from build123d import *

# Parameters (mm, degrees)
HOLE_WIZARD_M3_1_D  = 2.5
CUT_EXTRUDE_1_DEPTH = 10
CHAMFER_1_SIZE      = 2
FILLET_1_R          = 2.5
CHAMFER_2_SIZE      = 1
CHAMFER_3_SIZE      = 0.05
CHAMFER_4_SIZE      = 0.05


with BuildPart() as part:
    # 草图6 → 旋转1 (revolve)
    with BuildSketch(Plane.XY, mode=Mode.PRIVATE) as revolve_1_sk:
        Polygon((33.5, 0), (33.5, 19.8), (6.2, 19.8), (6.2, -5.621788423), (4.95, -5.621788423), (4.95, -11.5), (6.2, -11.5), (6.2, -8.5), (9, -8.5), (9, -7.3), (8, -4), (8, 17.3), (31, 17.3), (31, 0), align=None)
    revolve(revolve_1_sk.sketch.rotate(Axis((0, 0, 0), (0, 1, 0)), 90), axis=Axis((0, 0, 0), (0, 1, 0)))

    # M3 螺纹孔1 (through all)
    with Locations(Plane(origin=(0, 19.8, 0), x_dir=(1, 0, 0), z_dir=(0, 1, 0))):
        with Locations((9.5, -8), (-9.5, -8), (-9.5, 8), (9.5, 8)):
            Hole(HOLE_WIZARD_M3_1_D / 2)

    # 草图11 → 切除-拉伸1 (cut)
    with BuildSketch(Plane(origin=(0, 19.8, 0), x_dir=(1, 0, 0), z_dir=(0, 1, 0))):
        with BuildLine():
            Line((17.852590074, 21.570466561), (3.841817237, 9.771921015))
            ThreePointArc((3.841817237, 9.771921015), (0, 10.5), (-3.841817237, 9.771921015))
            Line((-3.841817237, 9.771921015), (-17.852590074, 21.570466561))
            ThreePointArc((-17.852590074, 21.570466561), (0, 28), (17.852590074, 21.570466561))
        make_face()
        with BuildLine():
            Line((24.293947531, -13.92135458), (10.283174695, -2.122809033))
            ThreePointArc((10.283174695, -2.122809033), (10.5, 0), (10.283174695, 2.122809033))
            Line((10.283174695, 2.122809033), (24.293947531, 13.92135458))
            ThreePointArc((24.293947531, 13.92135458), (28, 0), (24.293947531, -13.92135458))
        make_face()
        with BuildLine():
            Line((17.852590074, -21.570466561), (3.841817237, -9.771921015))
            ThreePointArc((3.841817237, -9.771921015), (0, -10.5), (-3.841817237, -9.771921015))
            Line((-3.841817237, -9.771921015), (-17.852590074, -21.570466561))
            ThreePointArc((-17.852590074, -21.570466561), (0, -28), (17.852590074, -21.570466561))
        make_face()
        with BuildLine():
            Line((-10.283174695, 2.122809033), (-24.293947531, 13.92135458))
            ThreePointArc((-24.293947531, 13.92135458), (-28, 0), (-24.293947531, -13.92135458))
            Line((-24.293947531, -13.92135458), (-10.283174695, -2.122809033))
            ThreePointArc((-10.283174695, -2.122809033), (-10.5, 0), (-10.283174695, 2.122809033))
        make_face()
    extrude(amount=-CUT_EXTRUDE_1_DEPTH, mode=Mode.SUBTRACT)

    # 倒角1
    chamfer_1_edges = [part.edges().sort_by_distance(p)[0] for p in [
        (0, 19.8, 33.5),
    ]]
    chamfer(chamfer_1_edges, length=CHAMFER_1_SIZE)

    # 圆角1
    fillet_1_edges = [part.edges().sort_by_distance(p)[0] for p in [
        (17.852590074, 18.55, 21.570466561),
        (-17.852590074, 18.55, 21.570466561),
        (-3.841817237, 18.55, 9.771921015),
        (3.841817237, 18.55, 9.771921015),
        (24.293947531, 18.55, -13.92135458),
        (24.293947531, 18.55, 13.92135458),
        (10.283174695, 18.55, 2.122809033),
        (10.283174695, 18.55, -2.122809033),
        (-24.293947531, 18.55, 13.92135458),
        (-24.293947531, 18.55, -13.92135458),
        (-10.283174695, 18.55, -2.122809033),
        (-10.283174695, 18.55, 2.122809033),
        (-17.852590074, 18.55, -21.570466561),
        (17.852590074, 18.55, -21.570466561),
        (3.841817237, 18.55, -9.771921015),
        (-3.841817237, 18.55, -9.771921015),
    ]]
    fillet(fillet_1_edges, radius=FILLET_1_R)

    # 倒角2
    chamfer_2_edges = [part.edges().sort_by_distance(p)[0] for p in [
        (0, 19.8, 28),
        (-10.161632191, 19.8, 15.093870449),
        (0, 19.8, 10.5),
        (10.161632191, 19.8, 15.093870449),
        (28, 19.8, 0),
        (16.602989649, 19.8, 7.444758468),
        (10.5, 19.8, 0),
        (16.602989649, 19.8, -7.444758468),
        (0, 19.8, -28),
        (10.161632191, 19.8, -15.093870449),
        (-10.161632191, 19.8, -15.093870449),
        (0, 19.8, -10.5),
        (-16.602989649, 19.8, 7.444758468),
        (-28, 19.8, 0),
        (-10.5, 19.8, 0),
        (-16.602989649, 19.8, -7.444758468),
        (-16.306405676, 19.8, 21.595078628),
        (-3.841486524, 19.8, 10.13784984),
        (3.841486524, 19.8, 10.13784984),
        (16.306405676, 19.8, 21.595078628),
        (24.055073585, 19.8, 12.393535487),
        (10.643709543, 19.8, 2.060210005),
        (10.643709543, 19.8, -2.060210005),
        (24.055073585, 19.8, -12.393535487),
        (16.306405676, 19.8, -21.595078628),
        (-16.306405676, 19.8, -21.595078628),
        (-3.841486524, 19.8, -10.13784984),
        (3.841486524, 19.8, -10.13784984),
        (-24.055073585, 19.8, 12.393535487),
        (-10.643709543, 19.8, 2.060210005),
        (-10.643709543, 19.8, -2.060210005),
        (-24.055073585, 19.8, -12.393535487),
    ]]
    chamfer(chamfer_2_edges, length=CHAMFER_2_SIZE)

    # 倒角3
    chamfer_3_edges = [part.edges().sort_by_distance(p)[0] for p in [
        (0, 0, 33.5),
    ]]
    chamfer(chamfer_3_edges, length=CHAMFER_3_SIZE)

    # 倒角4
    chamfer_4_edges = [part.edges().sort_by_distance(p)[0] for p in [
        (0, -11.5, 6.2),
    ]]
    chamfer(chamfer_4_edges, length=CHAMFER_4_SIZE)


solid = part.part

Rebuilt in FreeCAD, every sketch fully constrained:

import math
import FreeCAD as App
import Part
import Sketcher
from FreeCAD import Vector


def edges_at(feature, points):
    """Names of the edges that pass closest to the given points."""
    edges = feature.Shape.Edges
    near = lambda p: min(range(len(edges)), key=lambda i: edges[i].distToShape(Part.Vertex(*p))[0])
    return sorted({f"Edge{near(p) + 1}" for p in points})


def add_polygon(sketch, points):
    """Adds a closed chain of lines whose ends are joined by coincident constraints."""
    first, n = sketch.GeometryCount, len(points)
    for a, b in zip(points, points[1:] + points[:1]):
        sketch.addGeometry(Part.LineSegment(App.Vector(*a, 0), App.Vector(*b, 0)), False)
    for i in range(n):
        sketch.addConstraint(Sketcher.Constraint("Coincident", first + i, 2, first + (i + 1) % n, 1))

doc = App.newDocument("Part")
body = doc.addObject("PartDesign::Body", "Body")

# Sketch on XY plane
sketch1 = doc.addObject("Sketcher::SketchObject", "Sketch")
body.addObject(sketch1)
sketch1.AttachmentSupport = (doc.XY_Plane, [""])
sketch1.MapMode = "FlatFace"
add_polygon(sketch1, [(33.5, 0), (33.5, 19.8), (6.2, 19.8), (6.2, -5.6), (5, -5.6), (5, -11.5), (6.2, -11.5), (6.2, -8.5), (9, -8.5), (9, -7.3), (8, -4), (8, 17.3), (31, 17.3), (31, 0)])  # lines 0-13
sketch1.addConstraint(Sketcher.Constraint("Vertical", 0))
sketch1.addConstraint(Sketcher.Constraint("Horizontal", 1))
sketch1.addConstraint(Sketcher.Constraint("Vertical", 2))
sketch1.addConstraint(Sketcher.Constraint("Horizontal", 3))
sketch1.addConstraint(Sketcher.Constraint("Vertical", 4))
sketch1.addConstraint(Sketcher.Constraint("Horizontal", 5))
sketch1.addConstraint(Sketcher.Constraint("Vertical", 6))
sketch1.addConstraint(Sketcher.Constraint("Horizontal", 7))
sketch1.addConstraint(Sketcher.Constraint("Vertical", 8))
sketch1.addConstraint(Sketcher.Constraint("Vertical", 10))
sketch1.addConstraint(Sketcher.Constraint("Horizontal", 11))
sketch1.addConstraint(Sketcher.Constraint("Vertical", 12))
sketch1.addConstraint(Sketcher.Constraint("Horizontal", 13))
sketch1.addConstraint(Sketcher.Constraint("PointOnObject", 12, 2, -1))
sketch1.addConstraint(Sketcher.Constraint("Vertical", 2, 2, 5, 2))
sketch1.addConstraint(Sketcher.Constraint("DistanceX", 11, 1, 11, 2, 23.0))
sketch1.addConstraint(Sketcher.Constraint("DistanceY", 6, 1, 6, 2, 3.0))
sketch1.addConstraint(Sketcher.Constraint("DistanceX", 1, 2, 1, 1, 27.3))
sketch1.addConstraint(Sketcher.Constraint("DistanceX", 7, 1, 7, 2, 2.8))
sketch1.addConstraint(Sketcher.Constraint("DistanceX", 13, 1, 13, 2, 2.5))
sketch1.addConstraint(Sketcher.Constraint("DistanceY", 0, 1, 0, 2, 19.8))
sketch1.addConstraint(Sketcher.Constraint("DistanceY", 8, 1, 8, 2, 1.2))
sketch1.addConstraint(Sketcher.Constraint("DistanceY", 10, 1, 10, 2, 21.3))
sketch1.addConstraint(Sketcher.Constraint("DistanceY", 12, 2, 12, 1, 17.3))
sketch1.addConstraint(Sketcher.Constraint("DistanceX", -1, 1, 7, 2, 9.0))
sketch1.addConstraint(Sketcher.Constraint("DistanceX", 3, 2, 3, 1, 1.25))
sketch1.addConstraint(Sketcher.Constraint("DistanceY", 4, 2, -1, 1, 11.5))
sketch1.addConstraint(Sketcher.Constraint("DistanceY", 2, 2, 2, 1, 25.421788))
revolution = doc.addObject("PartDesign::Revolution", "Revolution")
body.addObject(revolution)
revolution.Profile = sketch1
revolution.ReferenceAxis = (sketch1, ["V_Axis"])
revolution.Angle = 360

# Sketch on XZ plane
sketch2 = doc.addObject("Sketcher::SketchObject", "Sketch001")
body.addObject(sketch2)
sketch2.AttachmentSupport = (doc.XZ_Plane, [""])
sketch2.MapMode = "FlatFace"
sketch2.AttachmentOffset = App.Placement(Vector(0, 0, -19.8), App.Rotation())
sketch2.addGeometry(Part.Circle(Vector(9.5, 8, 0), Vector(0, 0, 1), 1.2), False)
sketch2.addGeometry(Part.Circle(Vector(-9.5, 8, 0), Vector(0, 0, 1), 1.2), False)
sketch2.addGeometry(Part.Circle(Vector(-9.5, -8, 0), Vector(0, 0, 1), 1.2), False)
sketch2.addGeometry(Part.Circle(Vector(9.5, -8, 0), Vector(0, 0, 1), 1.2), False)
sketch2.addConstraint(Sketcher.Constraint("Equal", 0, 1))
sketch2.addConstraint(Sketcher.Constraint("Equal", 1, 2))
sketch2.addConstraint(Sketcher.Constraint("Equal", 2, 3))
sketch2.addConstraint(Sketcher.Constraint("Symmetric", 0, 3, 2, 3, -1, 1))
sketch2.addConstraint(Sketcher.Constraint("Symmetric", 1, 3, 3, 3, -1, 1))
sketch2.addConstraint(Sketcher.Constraint("Symmetric", 0, 3, 1, 3, -2))
sketch2.addConstraint(Sketcher.Constraint("Diameter", 0, 2.5))
sketch2.addConstraint(Sketcher.Constraint("DistanceY", -1, 1, 0, 3, 8.0))
sketch2.addConstraint(Sketcher.Constraint("DistanceX", 1, 3, 0, 3, 19.0))
doc.recompute()
hole = doc.addObject("PartDesign::Hole", "Hole")
body.addObject(hole)
hole.Profile = sketch2
hole.ThreadType = "None"
hole.Diameter = 2.5
hole.DepthType = "ThroughAll"
hole.Reversed = True

# Sketch on XZ plane
sketch3 = doc.addObject("Sketcher::SketchObject", "Sketch002")
body.addObject(sketch3)
sketch3.AttachmentSupport = (doc.XZ_Plane, [""])
sketch3.MapMode = "FlatFace"
sketch3.AttachmentOffset = App.Placement(Vector(0, 0, -19.8), App.Rotation())
sketch3.addGeometry(Part.LineSegment(Vector(3.8, -9.8, 0), Vector(17.9, -21.6, 0)), False)
sketch3.addGeometry(Part.ArcOfCircle(Part.Circle(Vector(0, 0, 0), Vector(0, 0, 1), 28), math.radians(-130), math.radians(-50)), False)
sketch3.addGeometry(Part.LineSegment(Vector(-17.9, -21.6, 0), Vector(-3.8, -9.8, 0)), False)
sketch3.addGeometry(Part.ArcOfCircle(Part.Circle(Vector(0, 0, 0), Vector(0, 0, 1), 10.5), math.radians(-111), math.radians(-69)), False)
sketch3.addGeometry(Part.LineSegment(Vector(10.3, 2.1, 0), Vector(24.3, 13.9, 0)), False)
sketch3.addGeometry(Part.ArcOfCircle(Part.Circle(Vector(0, 0, 0), Vector(0, 0, 1), 28), math.radians(-30), math.radians(30)), False)
sketch3.addGeometry(Part.LineSegment(Vector(24.3, -13.9, 0), Vector(10.3, -2.1, 0)), False)
sketch3.addGeometry(Part.ArcOfCircle(Part.Circle(Vector(0, 0, 0), Vector(0, 0, 1), 10.5), math.radians(-12), math.radians(12)), False)
sketch3.addGeometry(Part.LineSegment(Vector(17.9, 21.6, 0), Vector(3.8, 9.8, 0)), False)
sketch3.addGeometry(Part.ArcOfCircle(Part.Circle(Vector(0, 0, 0), Vector(0, 0, 1), 10.5), math.radians(69), math.radians(111)), False)
sketch3.addGeometry(Part.LineSegment(Vector(-3.8, 9.8, 0), Vector(-17.9, 21.6, 0)), False)
sketch3.addGeometry(Part.ArcOfCircle(Part.Circle(Vector(0, 0, 0), Vector(0, 0, 1), 28), math.radians(50), math.radians(130)), False)
sketch3.addGeometry(Part.LineSegment(Vector(-10.3, -2.1, 0), Vector(-24.3, -13.9, 0)), False)
sketch3.addGeometry(Part.ArcOfCircle(Part.Circle(Vector(0, 0, 0), Vector(0, 0, 1), 28), math.radians(150), math.radians(210)), False)
sketch3.addGeometry(Part.LineSegment(Vector(-24.3, 13.9, 0), Vector(-10.3, 2.1, 0)), False)
sketch3.addGeometry(Part.ArcOfCircle(Part.Circle(Vector(0, 0, 0), Vector(0, 0, 1), 10.5), math.radians(168), math.radians(192)), False)
sketch3.addConstraint(Sketcher.Constraint("Coincident", 0, 2, 1, 2))
sketch3.addConstraint(Sketcher.Constraint("Coincident", 1, 1, 2, 1))
sketch3.addConstraint(Sketcher.Constraint("Coincident", 2, 2, 3, 1))
sketch3.addConstraint(Sketcher.Constraint("Coincident", 3, 2, 0, 1))
sketch3.addConstraint(Sketcher.Constraint("Coincident", 4, 2, 5, 2))
sketch3.addConstraint(Sketcher.Constraint("Coincident", 5, 1, 6, 1))
sketch3.addConstraint(Sketcher.Constraint("Coincident", 6, 2, 7, 1))
sketch3.addConstraint(Sketcher.Constraint("Coincident", 7, 2, 4, 1))
sketch3.addConstraint(Sketcher.Constraint("Coincident", 8, 2, 9, 1))
sketch3.addConstraint(Sketcher.Constraint("Coincident", 9, 2, 10, 1))
sketch3.addConstraint(Sketcher.Constraint("Coincident", 10, 2, 11, 2))
sketch3.addConstraint(Sketcher.Constraint("Coincident", 11, 1, 8, 1))
sketch3.addConstraint(Sketcher.Constraint("Coincident", 12, 2, 13, 2))
sketch3.addConstraint(Sketcher.Constraint("Coincident", 13, 1, 14, 1))
sketch3.addConstraint(Sketcher.Constraint("Coincident", 14, 2, 15, 1))
sketch3.addConstraint(Sketcher.Constraint("Coincident", 15, 2, 12, 1))
sketch3.addConstraint(Sketcher.Constraint("Coincident", 1, 3, -1, 1))
sketch3.addConstraint(Sketcher.Constraint("Coincident", 3, 3, -1, 1))
sketch3.addConstraint(Sketcher.Constraint("Coincident", 5, 3, -1, 1))
sketch3.addConstraint(Sketcher.Constraint("Coincident", 7, 3, -1, 1))
sketch3.addConstraint(Sketcher.Constraint("Coincident", 9, 3, -1, 1))
sketch3.addConstraint(Sketcher.Constraint("Coincident", 11, 3, -1, 1))
sketch3.addConstraint(Sketcher.Constraint("Coincident", 13, 3, -1, 1))
sketch3.addConstraint(Sketcher.Constraint("Coincident", 15, 3, -1, 1))
sketch3.addConstraint(Sketcher.Constraint("Equal", 1, 5))
sketch3.addConstraint(Sketcher.Constraint("Equal", 3, 7))
sketch3.addConstraint(Sketcher.Constraint("Equal", 7, 9))
sketch3.addConstraint(Sketcher.Constraint("Equal", 5, 11))
sketch3.addConstraint(Sketcher.Constraint("Equal", 11, 13))
sketch3.addConstraint(Sketcher.Constraint("Equal", 9, 15))
sketch3.addConstraint(Sketcher.Constraint("Parallel", 2, 4))
sketch3.addConstraint(Sketcher.Constraint("Parallel", 0, 6))
sketch3.addConstraint(Sketcher.Constraint("Parallel", 4, 8))
sketch3.addConstraint(Sketcher.Constraint("Parallel", 6, 10))
sketch3.addConstraint(Sketcher.Constraint("Parallel", 8, 12))
sketch3.addConstraint(Sketcher.Constraint("Parallel", 10, 14))
sketch3.addConstraint(Sketcher.Constraint("Horizontal", 0, 2, 1, 1))
sketch3.addConstraint(Sketcher.Constraint("Horizontal", 2, 2, 3, 2))
sketch3.addConstraint(Sketcher.Constraint("Horizontal", 8, 2, 9, 2))
sketch3.addConstraint(Sketcher.Constraint("Horizontal", 5, 1, 12, 2))
sketch3.addConstraint(Sketcher.Constraint("Horizontal", 4, 2, 13, 1))
sketch3.addConstraint(Sketcher.Constraint("Vertical", 4, 2, 5, 1))
sketch3.addConstraint(Sketcher.Constraint("Vertical", 3, 2, 8, 2))
sketch3.addConstraint(Sketcher.Constraint("Equal", 2, 4))
sketch3.addConstraint(Sketcher.Constraint("Radius", 1, 28.0))
sketch3.addConstraint(Sketcher.Constraint("Radius", 3, 10.5))
sketch3.addConstraint(Sketcher.Constraint("Distance", 0, 18.316862))
sketch3.addConstraint(Sketcher.Constraint("DistanceX", -1, 1, 0, 2, 17.85259))
pocket1 = doc.addObject("PartDesign::Pocket", "Pocket")
body.addObject(pocket1)
pocket1.Profile = sketch3
pocket1.Length = 10
pocket1.Reversed = True
doc.recompute()

chamfer = doc.addObject("PartDesign::Chamfer", "Chamfer")
body.addObject(chamfer)
chamfer.Base = (pocket1, edges_at(pocket1, [(0, 19.8, 33.5)]))
chamfer.Size = 2
doc.recompute()

fillet = doc.addObject("PartDesign::Fillet", "Fillet")
body.addObject(fillet)
fillet.Base = (chamfer, edges_at(chamfer, [
    (17.853, 18.55, 21.57),
    (-17.853, 18.55, 21.57),
    (-3.842, 18.55, 9.772),
    (3.842, 18.55, 9.772),
    (24.294, 18.55, -13.921),
    (24.294, 18.55, 13.921),
    (10.283, 18.55, 2.123),
    (10.283, 18.55, -2.123),
    (-24.294, 18.55, 13.921),
    (-24.294, 18.55, -13.921),
    (-10.283, 18.55, -2.123),
    (-10.283, 18.55, 2.123),
    (-17.853, 18.55, -21.57),
    (17.853, 18.55, -21.57),
    (3.842, 18.55, -9.772),
    (-3.842, 18.55, -9.772),
]))
fillet.Radius = 2.5
doc.recompute()

chamfer2 = doc.addObject("PartDesign::Chamfer", "Chamfer001")
body.addObject(chamfer2)
chamfer2.Base = (fillet, edges_at(fillet, [
    (0, 19.8, 28),
    (-10.162, 19.8, 15.094),
    (0, 19.8, 10.5),
    (10.162, 19.8, 15.094),
    (28, 19.8, 0),
    (16.603, 19.8, 7.445),
    (10.5, 19.8, 0),
    (16.603, 19.8, -7.445),
    (0, 19.8, -28),
    (10.162, 19.8, -15.094),
    (-10.162, 19.8, -15.094),
    (0, 19.8, -10.5),
    (-16.603, 19.8, 7.445),
    (-28, 19.8, 0),
    (-10.5, 19.8, 0),
    (-16.603, 19.8, -7.445),
    (-16.306, 19.8, 21.595),
    (-3.841, 19.8, 10.138),
    (3.841, 19.8, 10.138),
    (16.306, 19.8, 21.595),
    (24.055, 19.8, 12.394),
    (10.644, 19.8, 2.06),
    (10.644, 19.8, -2.06),
    (24.055, 19.8, -12.394),
    (16.306, 19.8, -21.595),
    (-16.306, 19.8, -21.595),
    (-3.841, 19.8, -10.138),
    (3.841, 19.8, -10.138),
    (-24.055, 19.8, 12.394),
    (-10.644, 19.8, 2.06),
    (-10.644, 19.8, -2.06),
    (-24.055, 19.8, -12.394),
]))
chamfer2.Size = 1
doc.recompute()

chamfer3 = doc.addObject("PartDesign::Chamfer", "Chamfer002")
body.addObject(chamfer3)
chamfer3.Base = (chamfer2, edges_at(chamfer2, [(0, 0, 33.5)]))
chamfer3.Size = 0.05
doc.recompute()

chamfer4 = doc.addObject("PartDesign::Chamfer", "Chamfer003")
body.addObject(chamfer4)
chamfer4.Base = (chamfer3, edges_at(chamfer3, [(0, -11.5, 6.2)]))
chamfer4.Size = 0.05

doc.recompute()
